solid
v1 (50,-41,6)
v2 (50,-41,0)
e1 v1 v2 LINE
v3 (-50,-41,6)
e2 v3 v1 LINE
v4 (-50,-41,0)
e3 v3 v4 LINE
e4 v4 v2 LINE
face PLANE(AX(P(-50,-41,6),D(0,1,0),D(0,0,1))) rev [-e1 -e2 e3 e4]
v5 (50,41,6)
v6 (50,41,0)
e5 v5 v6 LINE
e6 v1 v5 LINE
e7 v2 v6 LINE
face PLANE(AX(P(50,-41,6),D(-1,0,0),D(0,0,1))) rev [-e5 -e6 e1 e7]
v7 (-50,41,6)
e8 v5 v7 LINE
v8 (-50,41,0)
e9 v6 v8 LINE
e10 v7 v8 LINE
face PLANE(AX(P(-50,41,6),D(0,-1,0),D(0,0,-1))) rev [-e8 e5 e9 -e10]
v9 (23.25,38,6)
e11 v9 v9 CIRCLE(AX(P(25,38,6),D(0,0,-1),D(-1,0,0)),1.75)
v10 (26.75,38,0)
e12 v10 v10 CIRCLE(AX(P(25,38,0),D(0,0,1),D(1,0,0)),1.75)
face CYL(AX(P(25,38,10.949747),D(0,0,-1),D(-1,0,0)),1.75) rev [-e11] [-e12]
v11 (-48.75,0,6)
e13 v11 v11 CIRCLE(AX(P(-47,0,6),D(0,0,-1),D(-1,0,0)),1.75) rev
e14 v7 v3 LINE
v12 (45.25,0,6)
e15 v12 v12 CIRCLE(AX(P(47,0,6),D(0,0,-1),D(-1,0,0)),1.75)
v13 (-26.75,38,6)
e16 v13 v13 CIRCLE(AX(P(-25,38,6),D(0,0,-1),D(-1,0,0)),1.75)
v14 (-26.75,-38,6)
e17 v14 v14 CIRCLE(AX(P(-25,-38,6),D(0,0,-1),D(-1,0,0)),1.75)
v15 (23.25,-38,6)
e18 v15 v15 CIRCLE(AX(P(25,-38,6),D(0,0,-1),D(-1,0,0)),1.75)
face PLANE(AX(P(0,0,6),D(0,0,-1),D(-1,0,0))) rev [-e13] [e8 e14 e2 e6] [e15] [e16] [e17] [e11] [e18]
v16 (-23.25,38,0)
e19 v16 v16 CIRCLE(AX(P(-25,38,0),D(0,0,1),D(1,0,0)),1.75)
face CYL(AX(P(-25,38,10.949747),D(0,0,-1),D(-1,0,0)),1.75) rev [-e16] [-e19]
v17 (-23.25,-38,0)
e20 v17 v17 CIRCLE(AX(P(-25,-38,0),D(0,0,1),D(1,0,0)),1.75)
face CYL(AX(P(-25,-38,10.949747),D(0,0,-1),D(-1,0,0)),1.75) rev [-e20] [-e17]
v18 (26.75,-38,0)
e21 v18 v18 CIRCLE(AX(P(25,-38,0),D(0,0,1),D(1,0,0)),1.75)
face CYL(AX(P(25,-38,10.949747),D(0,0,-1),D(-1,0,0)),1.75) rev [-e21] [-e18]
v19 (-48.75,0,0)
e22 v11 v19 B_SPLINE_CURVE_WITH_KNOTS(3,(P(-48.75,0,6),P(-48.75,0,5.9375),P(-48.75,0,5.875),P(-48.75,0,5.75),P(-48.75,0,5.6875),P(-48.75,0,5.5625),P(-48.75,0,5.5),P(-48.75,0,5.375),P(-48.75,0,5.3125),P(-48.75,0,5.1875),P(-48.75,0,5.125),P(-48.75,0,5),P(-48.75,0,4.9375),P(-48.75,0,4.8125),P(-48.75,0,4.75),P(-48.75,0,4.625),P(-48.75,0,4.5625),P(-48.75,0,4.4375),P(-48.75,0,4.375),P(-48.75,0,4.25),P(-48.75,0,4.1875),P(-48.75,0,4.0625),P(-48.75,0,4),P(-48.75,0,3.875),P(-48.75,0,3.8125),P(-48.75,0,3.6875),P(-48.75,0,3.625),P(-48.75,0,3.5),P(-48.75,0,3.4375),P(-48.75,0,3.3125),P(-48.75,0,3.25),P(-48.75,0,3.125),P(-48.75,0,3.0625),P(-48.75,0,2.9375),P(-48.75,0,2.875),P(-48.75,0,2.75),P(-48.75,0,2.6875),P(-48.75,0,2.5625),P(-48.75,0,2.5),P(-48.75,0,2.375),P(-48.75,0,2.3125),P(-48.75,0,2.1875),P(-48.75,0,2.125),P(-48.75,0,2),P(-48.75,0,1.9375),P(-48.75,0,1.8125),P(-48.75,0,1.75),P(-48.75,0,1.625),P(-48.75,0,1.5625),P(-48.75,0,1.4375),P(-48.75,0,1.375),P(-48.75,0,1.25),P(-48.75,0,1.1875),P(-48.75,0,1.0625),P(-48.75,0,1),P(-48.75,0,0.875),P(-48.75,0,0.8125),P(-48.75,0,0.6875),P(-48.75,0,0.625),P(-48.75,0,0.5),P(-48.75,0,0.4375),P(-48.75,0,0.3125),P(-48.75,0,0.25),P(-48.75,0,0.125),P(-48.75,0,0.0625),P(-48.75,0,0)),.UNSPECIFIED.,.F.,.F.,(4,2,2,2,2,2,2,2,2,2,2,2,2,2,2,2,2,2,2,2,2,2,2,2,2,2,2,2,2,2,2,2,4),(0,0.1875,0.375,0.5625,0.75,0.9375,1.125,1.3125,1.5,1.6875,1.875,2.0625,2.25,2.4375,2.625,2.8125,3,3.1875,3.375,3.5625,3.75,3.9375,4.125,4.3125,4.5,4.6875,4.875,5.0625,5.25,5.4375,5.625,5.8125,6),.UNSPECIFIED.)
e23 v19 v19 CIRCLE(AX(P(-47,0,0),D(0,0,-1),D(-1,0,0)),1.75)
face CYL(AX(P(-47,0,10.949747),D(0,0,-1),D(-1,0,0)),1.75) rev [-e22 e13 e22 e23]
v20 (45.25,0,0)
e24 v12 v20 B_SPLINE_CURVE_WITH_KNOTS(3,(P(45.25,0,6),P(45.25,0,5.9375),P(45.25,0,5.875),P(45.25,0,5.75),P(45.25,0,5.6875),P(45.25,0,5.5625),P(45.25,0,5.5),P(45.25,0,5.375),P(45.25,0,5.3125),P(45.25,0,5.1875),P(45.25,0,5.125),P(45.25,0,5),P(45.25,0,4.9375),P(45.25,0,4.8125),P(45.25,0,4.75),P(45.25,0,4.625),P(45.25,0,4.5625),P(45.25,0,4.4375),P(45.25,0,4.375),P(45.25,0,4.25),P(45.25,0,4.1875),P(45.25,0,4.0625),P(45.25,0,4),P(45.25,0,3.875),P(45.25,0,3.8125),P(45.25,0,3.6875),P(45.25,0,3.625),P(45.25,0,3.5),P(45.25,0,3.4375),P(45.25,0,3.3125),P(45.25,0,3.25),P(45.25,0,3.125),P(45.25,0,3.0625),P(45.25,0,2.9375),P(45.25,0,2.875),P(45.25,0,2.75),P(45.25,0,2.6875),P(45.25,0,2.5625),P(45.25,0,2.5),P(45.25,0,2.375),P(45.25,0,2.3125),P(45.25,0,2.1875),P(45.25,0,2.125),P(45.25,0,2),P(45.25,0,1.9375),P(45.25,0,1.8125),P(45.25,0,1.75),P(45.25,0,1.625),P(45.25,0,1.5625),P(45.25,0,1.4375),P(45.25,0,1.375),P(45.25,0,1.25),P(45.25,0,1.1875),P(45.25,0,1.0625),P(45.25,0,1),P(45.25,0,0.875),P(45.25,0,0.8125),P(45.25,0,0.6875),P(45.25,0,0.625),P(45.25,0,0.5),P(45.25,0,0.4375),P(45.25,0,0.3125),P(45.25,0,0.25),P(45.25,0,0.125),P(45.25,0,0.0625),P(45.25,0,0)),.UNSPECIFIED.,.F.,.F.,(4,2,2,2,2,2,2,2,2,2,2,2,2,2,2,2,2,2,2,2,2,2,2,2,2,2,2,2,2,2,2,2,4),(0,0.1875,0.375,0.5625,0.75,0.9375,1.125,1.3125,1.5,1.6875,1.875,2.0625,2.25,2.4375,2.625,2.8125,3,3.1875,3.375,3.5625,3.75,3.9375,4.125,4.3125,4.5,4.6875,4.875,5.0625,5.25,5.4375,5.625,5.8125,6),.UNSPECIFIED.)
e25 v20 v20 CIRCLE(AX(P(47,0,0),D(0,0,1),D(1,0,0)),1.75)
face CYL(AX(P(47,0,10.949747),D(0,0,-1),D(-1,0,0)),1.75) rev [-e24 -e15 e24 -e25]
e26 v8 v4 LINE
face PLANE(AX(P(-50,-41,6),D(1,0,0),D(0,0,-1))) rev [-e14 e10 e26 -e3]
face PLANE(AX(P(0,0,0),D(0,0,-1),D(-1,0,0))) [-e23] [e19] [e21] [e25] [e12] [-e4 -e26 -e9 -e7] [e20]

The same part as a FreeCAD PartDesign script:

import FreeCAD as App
import Part
import Sketcher
from FreeCAD import Vector
Q = App.Units.Quantity


def add_polygon(sketch, points):
    """Adds a closed chain of lines whose ends are joined by coincident constraints."""
    first, n = sketch.GeometryCount, len(points)
    for a, b in zip(points, points[1:] + points[:1]):
        sketch.addGeometry(Part.LineSegment(App.Vector(*a, 0), App.Vector(*b, 0)), False)
    for i in range(n):
        sketch.addConstraint(Sketcher.Constraint("Coincident", first + i, 2, first + (i + 1) % n, 1))

doc = App.newDocument("Part")
params = doc.addObject("Spreadsheet::Sheet", "Params")
for row, (alias, value) in enumerate([
    ("sketch1_width", "100 mm"),
    ("sketch1_height", "82 mm"),
    ("pad1_length", "6 mm"),
    ("sketch2_diameter", "3.5 mm"),
    ("pocket1_length", "6 mm"),
    ("sketch3_diameter", "3.5 mm"),
    ("pocket2_length", "6 mm"),
], start=1):
    params.set(f"A{row}", alias)
    params.set(f"B{row}", "=" + value)
    params.setAlias(f"B{row}", alias)

body = doc.addObject("PartDesign::Body", "Body")

sketch1 = body.newObject("Sketcher::SketchObject", "Sketch")
sketch1.AttachmentSupport = (doc.getObject("XY_Plane"), [""])
sketch1.MapMode = "FlatFace"
add_polygon(sketch1, [(-50, 41), (-50, -41), (50, -41), (50, 41)])
sketch1.addConstraint([
    Sketcher.Constraint("Vertical", 0),
    Sketcher.Constraint("Horizontal", 1),
    Sketcher.Constraint("Vertical", 2),
    Sketcher.Constraint("Horizontal", 3),
    Sketcher.Constraint("Symmetric", 0, 2, 2, 2, -1, 1),
    Sketcher.Constraint("DistanceX", 1, 1, 1, 2, Q("100 mm")),
    Sketcher.Constraint("DistanceY", 0, 2, 0, 1, Q("82 mm")),
])
sketch1.setExpression("Constraints[9]", "Params.sketch1_width")
sketch1.setExpression("Constraints[10]", "Params.sketch1_height")
pad1 = body.newObject("PartDesign::Pad", "Pad")
pad1.Profile = sketch1
pad1.setExpression("Length", "Params.pad1_length")

sketch2 = body.newObject("Sketcher::SketchObject", "Sketch001")
sketch2.AttachmentSupport = (doc.getObject("XY_Plane"), [""])
sketch2.MapMode = "FlatFace"
sketch2.addGeometry([
    Part.Circle(Vector(-25, -38, 0), Vector(0, 0, 1), 1.8),
    Part.Circle(Vector(25, -38, 0), Vector(0, 0, 1), 1.8),
    Part.Circle(Vector(-25, 38, 0), Vector(0, 0, 1), 1.8),
    Part.Circle(Vector(25, 38, 0), Vector(0, 0, 1), 1.8),
], False)
sketch2.addConstraint([
    Sketcher.Constraint("Equal", 0, 1),
    Sketcher.Constraint("Equal", 1, 2),
    Sketcher.Constraint("Equal", 2, 3),
    Sketcher.Constraint("Symmetric", 1, 3, 2, 3, -1, 1),
    Sketcher.Constraint("Symmetric", 0, 3, 3, 3, -1, 1),
    Sketcher.Constraint("Symmetric", 0, 3, 1, 3, -2),
    Sketcher.Constraint("Diameter", 0, Q("3.5 mm")),
    Sketcher.Constraint("DistanceX", 0, 3, -1, 1, Q("25 mm")),
    Sketcher.Constraint("DistanceY", 0, 3, -1, 1, Q("38 mm")),
])
sketch2.setExpression("Constraints[6]", "Params.sketch2_diameter")
pocket1 = body.newObject("PartDesign::Pocket", "Pocket")
pocket1.Profile = sketch2
pocket1.setExpression("Length", "Params.pocket1_length")
pocket1.Reversed = True

sketch3 = body.newObject("Sketcher::SketchObject", "Sketch002")
sketch3.AttachmentSupport = (doc.getObject("XY_Plane"), [""])
sketch3.MapMode = "FlatFace"
sketch3.addGeometry(Part.Circle(Vector(47, 0, 0), Vector(0, 0, 1), 1.8), False)
sketch3.addConstraint([
    Sketcher.Constraint("PointOnObject", 0, 3, -1),
    Sketcher.Constraint("Diameter", 0, Q("3.5 mm")),
    Sketcher.Constraint("DistanceX", -1, 1, 0, 3, Q("47 mm")),
])
sketch3.setExpression("Constraints[1]", "Params.sketch3_diameter")
pocket2 = body.newObject("PartDesign::Pocket", "Pocket001")
pocket2.Profile = sketch3
pocket2.setExpression("Length", "Params.pocket2_length")
pocket2.Reversed = True
doc.recompute()

mirrored = body.newObject("PartDesign::Mirrored", "Mirrored")
mirrored.Originals = [pocket2]
mirrored.MirrorPlane = (doc.getObject("YZ_Plane"), [""])
body.Tip = mirrored

doc.recompute()
